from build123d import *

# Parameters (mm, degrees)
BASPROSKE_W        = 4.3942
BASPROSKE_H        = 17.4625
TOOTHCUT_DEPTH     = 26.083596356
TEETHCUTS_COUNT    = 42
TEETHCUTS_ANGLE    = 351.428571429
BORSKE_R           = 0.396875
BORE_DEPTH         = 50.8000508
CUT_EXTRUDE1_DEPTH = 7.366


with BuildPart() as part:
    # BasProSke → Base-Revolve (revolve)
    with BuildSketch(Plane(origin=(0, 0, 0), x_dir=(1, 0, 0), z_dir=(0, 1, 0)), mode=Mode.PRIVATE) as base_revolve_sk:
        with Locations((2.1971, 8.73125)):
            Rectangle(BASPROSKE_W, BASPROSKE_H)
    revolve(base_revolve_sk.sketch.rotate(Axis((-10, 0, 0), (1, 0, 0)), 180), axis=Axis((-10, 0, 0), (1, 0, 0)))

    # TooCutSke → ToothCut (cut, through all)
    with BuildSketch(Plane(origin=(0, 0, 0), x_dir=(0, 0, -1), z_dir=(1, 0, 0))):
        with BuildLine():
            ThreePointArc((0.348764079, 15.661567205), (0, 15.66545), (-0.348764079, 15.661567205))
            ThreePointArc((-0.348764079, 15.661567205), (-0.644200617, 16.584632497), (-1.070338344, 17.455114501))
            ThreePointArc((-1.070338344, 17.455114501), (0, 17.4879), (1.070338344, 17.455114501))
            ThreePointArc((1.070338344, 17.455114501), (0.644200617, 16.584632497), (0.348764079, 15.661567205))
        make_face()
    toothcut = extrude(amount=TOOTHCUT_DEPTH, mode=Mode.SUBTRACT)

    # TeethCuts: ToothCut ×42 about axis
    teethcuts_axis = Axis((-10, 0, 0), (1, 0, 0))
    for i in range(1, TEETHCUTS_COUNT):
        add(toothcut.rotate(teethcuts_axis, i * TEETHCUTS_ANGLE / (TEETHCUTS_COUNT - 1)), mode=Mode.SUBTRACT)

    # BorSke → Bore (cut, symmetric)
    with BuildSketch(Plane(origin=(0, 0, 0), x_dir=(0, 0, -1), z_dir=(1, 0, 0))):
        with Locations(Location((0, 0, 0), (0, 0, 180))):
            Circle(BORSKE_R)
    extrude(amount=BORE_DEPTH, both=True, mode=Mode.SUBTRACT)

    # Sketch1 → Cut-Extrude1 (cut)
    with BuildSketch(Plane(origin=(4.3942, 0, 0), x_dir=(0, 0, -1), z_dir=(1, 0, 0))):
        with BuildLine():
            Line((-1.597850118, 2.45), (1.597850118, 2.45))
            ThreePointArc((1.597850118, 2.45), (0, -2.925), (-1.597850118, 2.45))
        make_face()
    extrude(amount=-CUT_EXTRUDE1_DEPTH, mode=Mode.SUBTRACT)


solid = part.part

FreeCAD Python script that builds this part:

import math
import FreeCAD as App
import Part
import Sketcher

V = App.Vector
Q = App.Units.Quantity


def add_polygon(sketch, points):
    """Adds a closed chain of lines whose ends are joined by coincident constraints."""
    first, n = sketch.GeometryCount, len(points)
    for a, b in zip(points, points[1:] + points[:1]):
        sketch.addGeometry(Part.LineSegment(App.Vector(*a, 0), App.Vector(*b, 0)), False)
    for i in range(n):
        sketch.addConstraint(Sketcher.Constraint("Coincident", first + i, 2, first + (i + 1) % n, 1))

doc = App.newDocument("Part")
body = doc.addObject("PartDesign::Body", "Body")

sketch1 = doc.addObject("Sketcher::SketchObject", "Sketch")
body.addObject(sketch1)
sketch1.AttachmentSupport = (doc.XZ_Plane, [""])
sketch1.MapMode = "FlatFace"
add_polygon(sketch1, [(0, -17.5), (0, 0), (4.4, 0), (4.4, -17.5)])
sketch1.addConstraint([
    Sketcher.Constraint("Vertical", 0),
    Sketcher.Constraint("Horizontal", 1),
    Sketcher.Constraint("Vertical", 2),
    Sketcher.Constraint("Horizontal", 3),
    Sketcher.Constraint("Coincident", 0, 2, -1, 1),
    Sketcher.Constraint("DistanceX", 1, 1, 1, 2, Q("0.173 in")),
    Sketcher.Constraint("DistanceY", 0, 1, 0, 2, Q("0.6875 in")),
])
revolution = doc.addObject("PartDesign::Revolution", "Revolution")
body.addObject(revolution)
revolution.Profile = sketch1
revolution.ReferenceAxis = (sketch1, ["H_Axis"])
revolution.Angle = 360

sketch2 = doc.addObject("Sketcher::SketchObject", "Sketch001")
body.addObject(sketch2)
sketch2.AttachmentSupport = (doc.YZ_Plane, [""])
sketch2.MapMode = "FlatFace"
sketch2.addGeometry([
    Part.ArcOfCircle(Part.Circle(V(0, 0, 0), V(0, 0, 1), 15.7), math.radians(-1.28), math.radians(1.28)),
    Part.ArcOfCircle(Part.Circle(V(14.1, -6.8, 0), V(0, 0, 1), 6.7), math.radians(59.75), math.radians(76.42)),
    Part.ArcOfCircle(Part.Circle(V(0, 0, 0), V(0, 0, 1), 17.5), math.radians(-3.51), math.radians(3.51)),
    Part.ArcOfCircle(Part.Circle(V(14.1, 6.8, 0), V(0, 0, 1), 6.7), math.radians(-76.42), math.radians(-59.75)),
], False)
sketch2.addConstraint([
    Sketcher.Constraint("Coincident", 0, 1, 1, 2),
    Sketcher.Constraint("Coincident", 1, 1, 2, 1),
    Sketcher.Constraint("Coincident", 2, 2, 3, 2),
    Sketcher.Constraint("Coincident", 3, 1, 0, 2),
    Sketcher.Constraint("Coincident", 0, 3, -1, 1),
    Sketcher.Constraint("Coincident", 2, 3, -1, 1),
    Sketcher.Constraint("Equal", 1, 3),
    Sketcher.Constraint("Symmetric", 1, 3, 3, 3, -1),
    Sketcher.Constraint("Radius", 1, Q("0.2625 in")),
    Sketcher.Constraint("Radius", 2, Q("0.6885 in")),
    Sketcher.Constraint("Radius", 0, 15.66545),
    Sketcher.Constraint("DistanceY", 1, 3, 0, 1, 6.481101),
    Sketcher.Constraint("DistanceY", 1, 1, -1, 1, 1.070338),
])
pocket1 = doc.addObject("PartDesign::Pocket", "Pocket")
body.addObject(pocket1)
pocket1.Profile = sketch2
pocket1.Type = "ThroughAll"
pocket1.Reversed = True
doc.recompute()

polarpattern = doc.addObject("PartDesign::PolarPattern", "PolarPattern")
body.addObject(polarpattern)
polarpattern.Originals = [pocket1]
polarpattern.Axis = (doc.X_Axis, [""])
polarpattern.Angle = 360
polarpattern.Occurrences = 42
body.Tip = polarpattern

sketch3 = doc.addObject("Sketcher::SketchObject", "Sketch002")
body.addObject(sketch3)
sketch3.AttachmentSupport = (doc.YZ_Plane, [""])
sketch3.MapMode = "FlatFace"
sketch3.addGeometry(Part.Circle(V(0, 0, 0), V(0, 0, 1), 0.4), False)
sketch3.addConstraint([
    Sketcher.Constraint("Coincident", 0, 3, -1, 1),
    Sketcher.Constraint("Diameter", 0, Q("0.03125 in")),
])
pocket2 = doc.addObject("PartDesign::Pocket", "Pocket001")
body.addObject(pocket2)
pocket2.Profile = sketch3
pocket2.Length = 101.600102
pocket2.Midplane = True

sketch4 = doc.addObject("Sketcher::SketchObject", "Sketch003")
body.addObject(sketch4)
sketch4.AttachmentSupport = (doc.YZ_Plane, [""])
sketch4.MapMode = "FlatFace"
sketch4.AttachmentOffset = App.Placement(V(0, 0, 0.173 * 25.4), App.Rotation())
sketch4.addGeometry([
    Part.LineSegment(V(2.5, -1.6, 0), V(2.5, 1.6, 0)),
    Part.ArcOfCircle(Part.Circle(V(0, 0, 0), V(0, 0, 1), 2.9), math.radians(33), math.radians(327)),
], False)
sketch4.addConstraint([
    Sketcher.Constraint("Coincident", 0, 1, 1, 2),
    Sketcher.Constraint("Coincident", 1, 1, 0, 2),
    Sketcher.Constraint("Vertical", 0),
    Sketcher.Constraint("Coincident", 1, 3, -1, 1),
    Sketcher.Constraint("Radius", 1, 2.925),
    Sketcher.Constraint("DistanceY", 0, 1, 0, 2, 3.1957),
])
pocket3 = doc.addObject("PartDesign::Pocket", "Pocket002")
body.addObject(pocket3)
pocket3.Profile = sketch4
pocket3.Length = Q("0.29 in")

doc.recompute()
